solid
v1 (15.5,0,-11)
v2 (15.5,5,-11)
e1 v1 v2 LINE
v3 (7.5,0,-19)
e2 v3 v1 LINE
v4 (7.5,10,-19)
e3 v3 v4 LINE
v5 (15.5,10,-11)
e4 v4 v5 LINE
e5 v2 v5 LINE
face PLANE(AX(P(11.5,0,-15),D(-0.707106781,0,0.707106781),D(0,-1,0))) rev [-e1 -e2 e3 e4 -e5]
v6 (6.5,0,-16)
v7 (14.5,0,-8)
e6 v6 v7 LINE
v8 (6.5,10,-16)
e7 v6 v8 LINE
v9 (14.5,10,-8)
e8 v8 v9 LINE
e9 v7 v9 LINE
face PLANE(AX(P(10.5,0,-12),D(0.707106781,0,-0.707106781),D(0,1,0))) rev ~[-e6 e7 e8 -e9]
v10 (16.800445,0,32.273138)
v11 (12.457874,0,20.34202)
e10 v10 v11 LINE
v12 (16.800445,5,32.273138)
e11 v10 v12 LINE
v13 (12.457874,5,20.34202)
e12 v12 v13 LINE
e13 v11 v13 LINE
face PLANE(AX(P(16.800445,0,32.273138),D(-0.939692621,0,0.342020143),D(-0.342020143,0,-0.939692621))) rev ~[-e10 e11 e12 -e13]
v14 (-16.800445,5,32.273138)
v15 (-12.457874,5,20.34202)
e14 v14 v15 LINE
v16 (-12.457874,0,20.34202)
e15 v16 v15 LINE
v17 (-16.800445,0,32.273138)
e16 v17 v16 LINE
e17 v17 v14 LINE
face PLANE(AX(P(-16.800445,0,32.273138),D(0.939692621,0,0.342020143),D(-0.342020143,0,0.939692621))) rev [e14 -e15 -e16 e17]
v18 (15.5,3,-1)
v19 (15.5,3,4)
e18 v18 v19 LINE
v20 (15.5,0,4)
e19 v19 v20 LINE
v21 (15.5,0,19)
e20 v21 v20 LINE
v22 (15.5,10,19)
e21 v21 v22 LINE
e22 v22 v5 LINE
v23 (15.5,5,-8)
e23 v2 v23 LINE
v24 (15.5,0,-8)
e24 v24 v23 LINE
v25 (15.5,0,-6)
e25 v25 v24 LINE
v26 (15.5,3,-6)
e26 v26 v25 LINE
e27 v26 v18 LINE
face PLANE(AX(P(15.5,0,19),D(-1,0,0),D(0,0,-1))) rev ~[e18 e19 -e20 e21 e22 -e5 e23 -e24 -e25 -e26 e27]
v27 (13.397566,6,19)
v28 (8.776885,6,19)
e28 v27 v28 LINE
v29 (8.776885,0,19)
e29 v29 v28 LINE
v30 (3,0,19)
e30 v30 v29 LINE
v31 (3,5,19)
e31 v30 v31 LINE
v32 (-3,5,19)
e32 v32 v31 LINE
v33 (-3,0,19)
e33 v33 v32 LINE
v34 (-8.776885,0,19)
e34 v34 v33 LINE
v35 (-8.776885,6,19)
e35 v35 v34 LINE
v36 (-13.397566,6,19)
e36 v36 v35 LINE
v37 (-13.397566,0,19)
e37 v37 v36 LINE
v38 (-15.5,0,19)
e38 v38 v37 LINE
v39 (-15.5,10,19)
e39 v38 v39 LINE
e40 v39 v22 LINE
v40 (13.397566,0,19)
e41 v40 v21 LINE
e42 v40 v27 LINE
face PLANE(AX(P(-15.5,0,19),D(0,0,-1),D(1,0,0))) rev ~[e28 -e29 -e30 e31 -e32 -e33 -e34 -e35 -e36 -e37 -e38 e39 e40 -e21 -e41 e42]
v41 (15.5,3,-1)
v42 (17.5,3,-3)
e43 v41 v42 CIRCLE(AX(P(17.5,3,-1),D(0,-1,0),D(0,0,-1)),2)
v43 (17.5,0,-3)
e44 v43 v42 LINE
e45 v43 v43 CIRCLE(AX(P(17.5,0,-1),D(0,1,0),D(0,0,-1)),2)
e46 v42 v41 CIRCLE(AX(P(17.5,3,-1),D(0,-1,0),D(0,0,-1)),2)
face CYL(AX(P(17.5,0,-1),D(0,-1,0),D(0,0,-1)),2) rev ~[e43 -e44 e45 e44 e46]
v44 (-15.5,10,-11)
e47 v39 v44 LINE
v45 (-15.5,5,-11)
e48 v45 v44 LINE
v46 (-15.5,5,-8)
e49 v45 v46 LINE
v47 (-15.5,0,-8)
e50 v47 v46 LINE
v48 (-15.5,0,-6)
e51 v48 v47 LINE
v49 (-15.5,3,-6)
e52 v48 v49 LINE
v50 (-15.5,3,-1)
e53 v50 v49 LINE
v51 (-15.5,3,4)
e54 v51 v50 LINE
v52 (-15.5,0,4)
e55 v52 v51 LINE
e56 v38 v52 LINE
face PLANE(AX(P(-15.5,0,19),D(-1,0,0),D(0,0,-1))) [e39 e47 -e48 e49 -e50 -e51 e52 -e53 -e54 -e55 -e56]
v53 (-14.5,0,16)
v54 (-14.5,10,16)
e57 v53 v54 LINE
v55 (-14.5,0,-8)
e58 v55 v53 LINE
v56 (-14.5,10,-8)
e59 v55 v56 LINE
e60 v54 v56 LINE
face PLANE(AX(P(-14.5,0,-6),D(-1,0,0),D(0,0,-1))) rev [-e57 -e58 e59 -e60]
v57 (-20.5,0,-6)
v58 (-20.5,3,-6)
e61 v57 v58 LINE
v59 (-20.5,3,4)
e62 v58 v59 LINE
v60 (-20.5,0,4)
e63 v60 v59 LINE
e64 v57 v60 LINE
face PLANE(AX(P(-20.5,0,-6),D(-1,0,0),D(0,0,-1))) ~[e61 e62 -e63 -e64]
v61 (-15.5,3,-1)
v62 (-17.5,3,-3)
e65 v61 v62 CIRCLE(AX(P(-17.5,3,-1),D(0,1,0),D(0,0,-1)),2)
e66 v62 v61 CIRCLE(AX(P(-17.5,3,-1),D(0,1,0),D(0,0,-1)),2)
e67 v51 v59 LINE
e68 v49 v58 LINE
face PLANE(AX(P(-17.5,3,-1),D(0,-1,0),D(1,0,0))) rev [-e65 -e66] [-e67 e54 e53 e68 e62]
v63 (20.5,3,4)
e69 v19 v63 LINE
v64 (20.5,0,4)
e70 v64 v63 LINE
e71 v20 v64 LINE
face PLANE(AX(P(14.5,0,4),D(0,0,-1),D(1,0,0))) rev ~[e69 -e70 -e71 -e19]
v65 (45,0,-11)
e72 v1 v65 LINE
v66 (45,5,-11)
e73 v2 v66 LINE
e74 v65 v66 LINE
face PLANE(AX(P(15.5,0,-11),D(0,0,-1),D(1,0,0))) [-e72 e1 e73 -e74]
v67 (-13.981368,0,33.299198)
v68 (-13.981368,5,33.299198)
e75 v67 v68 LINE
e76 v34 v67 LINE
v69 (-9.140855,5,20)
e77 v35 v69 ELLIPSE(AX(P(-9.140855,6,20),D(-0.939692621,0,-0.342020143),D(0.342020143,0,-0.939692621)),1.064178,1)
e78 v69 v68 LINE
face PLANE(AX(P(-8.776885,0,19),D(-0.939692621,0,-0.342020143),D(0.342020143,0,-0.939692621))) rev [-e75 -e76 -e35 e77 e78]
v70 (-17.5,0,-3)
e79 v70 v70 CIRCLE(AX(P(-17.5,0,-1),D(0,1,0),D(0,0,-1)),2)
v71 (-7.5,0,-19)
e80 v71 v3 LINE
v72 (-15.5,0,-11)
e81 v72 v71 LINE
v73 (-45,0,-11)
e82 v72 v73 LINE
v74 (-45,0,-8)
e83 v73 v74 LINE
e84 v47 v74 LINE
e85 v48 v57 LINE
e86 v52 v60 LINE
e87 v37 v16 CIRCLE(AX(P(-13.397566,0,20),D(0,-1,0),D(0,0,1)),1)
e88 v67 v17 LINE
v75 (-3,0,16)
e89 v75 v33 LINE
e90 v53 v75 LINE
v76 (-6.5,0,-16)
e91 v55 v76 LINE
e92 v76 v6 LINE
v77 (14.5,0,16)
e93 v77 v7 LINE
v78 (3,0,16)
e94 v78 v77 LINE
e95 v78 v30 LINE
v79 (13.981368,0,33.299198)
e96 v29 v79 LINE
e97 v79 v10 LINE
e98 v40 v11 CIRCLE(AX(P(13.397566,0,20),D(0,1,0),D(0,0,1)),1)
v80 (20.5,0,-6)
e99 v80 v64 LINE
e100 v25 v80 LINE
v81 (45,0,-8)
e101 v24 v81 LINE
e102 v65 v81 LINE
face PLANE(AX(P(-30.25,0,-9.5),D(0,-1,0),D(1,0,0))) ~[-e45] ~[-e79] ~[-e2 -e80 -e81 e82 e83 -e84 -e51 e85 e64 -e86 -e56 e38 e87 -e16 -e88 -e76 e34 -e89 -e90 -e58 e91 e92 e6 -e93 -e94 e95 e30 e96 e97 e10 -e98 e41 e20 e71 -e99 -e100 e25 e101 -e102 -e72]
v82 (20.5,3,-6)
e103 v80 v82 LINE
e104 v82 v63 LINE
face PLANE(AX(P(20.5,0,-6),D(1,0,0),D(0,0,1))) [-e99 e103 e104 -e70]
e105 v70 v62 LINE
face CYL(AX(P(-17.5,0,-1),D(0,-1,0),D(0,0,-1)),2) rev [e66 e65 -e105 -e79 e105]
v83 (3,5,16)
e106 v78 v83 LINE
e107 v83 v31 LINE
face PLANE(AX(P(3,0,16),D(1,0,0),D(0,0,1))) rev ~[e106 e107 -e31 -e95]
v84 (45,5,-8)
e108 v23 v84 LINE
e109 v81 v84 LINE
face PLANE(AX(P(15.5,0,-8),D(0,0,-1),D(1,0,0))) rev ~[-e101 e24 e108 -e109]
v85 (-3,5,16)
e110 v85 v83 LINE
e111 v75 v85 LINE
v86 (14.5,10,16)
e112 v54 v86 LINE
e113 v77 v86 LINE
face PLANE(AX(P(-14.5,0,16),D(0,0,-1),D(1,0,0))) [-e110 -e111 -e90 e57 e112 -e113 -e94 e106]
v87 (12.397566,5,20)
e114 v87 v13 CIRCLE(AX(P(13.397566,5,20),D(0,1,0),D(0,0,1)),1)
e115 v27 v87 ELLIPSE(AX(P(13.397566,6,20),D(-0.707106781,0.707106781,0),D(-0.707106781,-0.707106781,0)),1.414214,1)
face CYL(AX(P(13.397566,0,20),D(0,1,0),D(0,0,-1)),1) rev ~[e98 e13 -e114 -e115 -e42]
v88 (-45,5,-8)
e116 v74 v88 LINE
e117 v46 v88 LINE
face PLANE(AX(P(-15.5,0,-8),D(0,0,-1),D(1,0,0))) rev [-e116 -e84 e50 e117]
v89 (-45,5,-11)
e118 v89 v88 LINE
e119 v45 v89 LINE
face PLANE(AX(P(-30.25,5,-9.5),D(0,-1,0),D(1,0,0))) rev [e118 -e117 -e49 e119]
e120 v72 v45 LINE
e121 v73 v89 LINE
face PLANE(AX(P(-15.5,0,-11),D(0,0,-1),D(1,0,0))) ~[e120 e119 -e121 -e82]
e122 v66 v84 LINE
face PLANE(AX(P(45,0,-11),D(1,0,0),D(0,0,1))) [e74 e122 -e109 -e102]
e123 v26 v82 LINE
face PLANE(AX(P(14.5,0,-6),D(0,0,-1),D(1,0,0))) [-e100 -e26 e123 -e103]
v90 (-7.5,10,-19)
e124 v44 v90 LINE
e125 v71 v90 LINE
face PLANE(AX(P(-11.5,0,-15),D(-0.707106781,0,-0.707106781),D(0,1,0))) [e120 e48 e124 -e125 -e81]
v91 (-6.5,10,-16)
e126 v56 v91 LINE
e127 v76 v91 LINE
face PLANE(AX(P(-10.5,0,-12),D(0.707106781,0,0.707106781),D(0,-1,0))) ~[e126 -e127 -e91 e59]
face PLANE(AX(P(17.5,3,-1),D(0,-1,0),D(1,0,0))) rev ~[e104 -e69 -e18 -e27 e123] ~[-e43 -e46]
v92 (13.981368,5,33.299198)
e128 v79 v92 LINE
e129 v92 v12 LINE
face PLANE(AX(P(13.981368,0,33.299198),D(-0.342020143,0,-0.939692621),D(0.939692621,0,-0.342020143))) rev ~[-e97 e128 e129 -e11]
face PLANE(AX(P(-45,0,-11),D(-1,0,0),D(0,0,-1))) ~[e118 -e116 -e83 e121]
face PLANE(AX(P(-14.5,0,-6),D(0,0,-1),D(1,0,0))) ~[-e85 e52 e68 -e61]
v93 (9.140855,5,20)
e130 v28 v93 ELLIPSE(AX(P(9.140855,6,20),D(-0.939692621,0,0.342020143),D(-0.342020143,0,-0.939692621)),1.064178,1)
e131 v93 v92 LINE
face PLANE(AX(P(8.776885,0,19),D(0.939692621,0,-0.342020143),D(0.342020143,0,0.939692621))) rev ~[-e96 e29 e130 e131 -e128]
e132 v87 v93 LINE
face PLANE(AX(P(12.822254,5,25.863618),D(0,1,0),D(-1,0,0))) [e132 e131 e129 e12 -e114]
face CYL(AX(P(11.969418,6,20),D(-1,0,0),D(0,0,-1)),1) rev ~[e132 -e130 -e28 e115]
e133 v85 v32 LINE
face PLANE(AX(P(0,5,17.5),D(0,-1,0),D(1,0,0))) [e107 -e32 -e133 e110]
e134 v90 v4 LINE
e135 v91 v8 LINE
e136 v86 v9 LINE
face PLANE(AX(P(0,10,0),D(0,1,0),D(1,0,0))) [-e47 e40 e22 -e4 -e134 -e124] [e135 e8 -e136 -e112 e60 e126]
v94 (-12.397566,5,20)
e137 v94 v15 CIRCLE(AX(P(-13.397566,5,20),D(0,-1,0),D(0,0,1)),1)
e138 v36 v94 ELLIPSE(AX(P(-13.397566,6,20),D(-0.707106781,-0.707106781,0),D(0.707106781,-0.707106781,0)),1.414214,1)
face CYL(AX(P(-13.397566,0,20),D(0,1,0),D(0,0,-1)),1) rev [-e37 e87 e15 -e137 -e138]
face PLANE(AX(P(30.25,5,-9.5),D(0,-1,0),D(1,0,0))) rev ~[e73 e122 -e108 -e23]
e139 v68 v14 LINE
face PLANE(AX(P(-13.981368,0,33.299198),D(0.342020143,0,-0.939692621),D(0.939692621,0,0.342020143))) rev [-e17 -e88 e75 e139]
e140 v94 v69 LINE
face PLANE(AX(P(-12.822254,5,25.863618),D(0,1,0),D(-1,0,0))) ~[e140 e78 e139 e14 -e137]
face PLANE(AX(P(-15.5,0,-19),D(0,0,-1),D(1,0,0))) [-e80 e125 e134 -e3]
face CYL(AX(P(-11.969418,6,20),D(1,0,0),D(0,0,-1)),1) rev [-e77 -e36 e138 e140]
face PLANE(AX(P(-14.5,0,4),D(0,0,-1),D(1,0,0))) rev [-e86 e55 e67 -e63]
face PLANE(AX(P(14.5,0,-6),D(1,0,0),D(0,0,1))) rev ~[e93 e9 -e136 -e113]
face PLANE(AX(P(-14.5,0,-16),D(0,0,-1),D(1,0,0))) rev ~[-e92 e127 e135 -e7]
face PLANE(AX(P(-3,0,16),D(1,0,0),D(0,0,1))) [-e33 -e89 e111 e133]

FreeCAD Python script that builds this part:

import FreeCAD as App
import Part
import Sketcher
Q = App.Units.Quantity


def edges_at(feature, points):
    """Names of the edges that pass closest to the given points."""
    edges = feature.Shape.Edges
    near = lambda p: min(range(len(edges)), key=lambda i: edges[i].distToShape(Part.Vertex(*p))[0])
    return sorted({f"Edge{near(p) + 1}" for p in points})


def add_polygon(sketch, points):
    """Adds a closed chain of lines whose ends are joined by coincident constraints."""
    first, n = sketch.GeometryCount, len(points)
    for a, b in zip(points, points[1:] + points[:1]):
        sketch.addGeometry(Part.LineSegment(App.Vector(*a, 0), App.Vector(*b, 0)), False)
    for i in range(n):
        sketch.addConstraint(Sketcher.Constraint("Coincident", first + i, 2, first + (i + 1) % n, 1))

doc = App.newDocument("Part")
body = doc.addObject("PartDesign::Body", "Body")

sketch1 = body.newObject("Sketcher::SketchObject", "Sketch")
sketch1.AttachmentSupport = (doc.getObject("XZ_Plane"), [""])
sketch1.MapMode = "FlatFace"
add_polygon(sketch1, [(-16, -19), (-16, 19), (16, 19), (16, -19)])
add_polygon(sketch1, [(14, 16), (-14, 16), (-14, -16), (14, -16)])
sketch1.addConstraint(Sketcher.Constraint("Vertical", 0))
sketch1.addConstraint(Sketcher.Constraint("Horizontal", 1))
sketch1.addConstraint(Sketcher.Constraint("Vertical", 2))
sketch1.addConstraint(Sketcher.Constraint("Horizontal", 3))
sketch1.addConstraint(Sketcher.Constraint("Horizontal", 4))
sketch1.addConstraint(Sketcher.Constraint("Vertical", 5))
sketch1.addConstraint(Sketcher.Constraint("Horizontal", 6))
sketch1.addConstraint(Sketcher.Constraint("Vertical", 7))
sketch1.addConstraint(Sketcher.Constraint("Symmetric", 0, 2, 2, 2, -1, 1))
sketch1.addConstraint(Sketcher.Constraint("Symmetric", 4, 2, 6, 2, -1, 1))
sketch1.addConstraint(Sketcher.Constraint("DistanceX", 1, 1, 1, 2, Q("31 mm")))
sketch1.addConstraint(Sketcher.Constraint("DistanceX", 4, 2, 4, 1, Q("29 mm")))
sketch1.addConstraint(Sketcher.Constraint("DistanceY", 0, 1, 0, 2, Q("38 mm")))
sketch1.addConstraint(Sketcher.Constraint("DistanceY", 5, 2, 5, 1, Q("32 mm")))
pad1 = body.newObject("PartDesign::Pad", "Pad")
pad1.Profile = sketch1
pad1.Length = 10
pad1.Reversed = True

sketch2 = body.newObject("Sketcher::SketchObject", "Sketch001")
sketch2.AttachmentSupport = (doc.getObject("XZ_Plane"), [""])
sketch2.MapMode = "FlatFace"
add_polygon(sketch2, [(14.5, 4), (14.5, -6), (20.5, -6), (20.5, 4)])
sketch2.addGeometry(Part.Circle(App.Vector(17.5, -1, 0), App.Vector(0, 0, 1), 2), False)
sketch2.addConstraint(Sketcher.Constraint("Vertical", 0))
sketch2.addConstraint(Sketcher.Constraint("Horizontal", 1))
sketch2.addConstraint(Sketcher.Constraint("Vertical", 2))
sketch2.addConstraint(Sketcher.Constraint("Horizontal", 3))
sketch2.addConstraint(Sketcher.Constraint("Diameter", 4, Q("4 mm")))
sketch2.addConstraint(Sketcher.Constraint("DistanceX", 1, 1, 1, 2, Q("6 mm")))
sketch2.addConstraint(Sketcher.Constraint("DistanceY", 0, 2, 0, 1, Q("10 mm")))
sketch2.addConstraint(Sketcher.Constraint("DistanceY", 4, 3, -1, 1, Q("1 mm")))
sketch2.addConstraint(Sketcher.Constraint("DistanceY", 0, 2, -1, 1, Q("6 mm")))
sketch2.addConstraint(Sketcher.Constraint("DistanceX", 0, 2, 4, 3, Q("3 mm")))
sketch2.addConstraint(Sketcher.Constraint("DistanceX", -1, 1, 4, 3, Q("17.5 mm")))
pad2 = body.newObject("PartDesign::Pad", "Pad001")
pad2.Profile = sketch2
pad2.Length = 3
pad2.Reversed = True
doc.recompute()

mirrored = body.newObject("PartDesign::Mirrored", "Mirrored")
mirrored.Originals = [pad2]
mirrored.MirrorPlane = (doc.getObject("YZ_Plane"), [""])
body.Tip = mirrored

sketch3 = body.newObject("Sketcher::SketchObject", "Sketch002")
sketch3.AttachmentSupport = (doc.getObject("XZ_Plane"), [""])
sketch3.MapMode = "FlatFace"
add_polygon(sketch3, [(-3, 19), (-3, 16), (3, 16), (3, 19)])
sketch3.addConstraint(Sketcher.Constraint("Vertical", 0))
sketch3.addConstraint(Sketcher.Constraint("Horizontal", 1))
sketch3.addConstraint(Sketcher.Constraint("Vertical", 2))
sketch3.addConstraint(Sketcher.Constraint("Horizontal", 3))
sketch3.addConstraint(Sketcher.Constraint("DistanceX", 1, 1, 1, 2, Q("6 mm")))
sketch3.addConstraint(Sketcher.Constraint("DistanceY", 0, 2, 0, 1, Q("3 mm")))
sketch3.addConstraint(Sketcher.Constraint("DistanceX", 0, 2, -1, 1, Q("3 mm")))
sketch3.addConstraint(Sketcher.Constraint("DistanceY", -1, 1, 0, 2, Q("16 mm")))
pocket1 = body.newObject("PartDesign::Pocket", "Pocket")
pocket1.Profile = sketch3
pocket1.Length = 5

sketch4 = body.newObject("Sketcher::SketchObject", "Sketch003")
sketch4.AttachmentSupport = (doc.getObject("XZ_Plane"), [""])
sketch4.MapMode = "FlatFace"
add_polygon(sketch4, [(16.8, 32.3), (14, 33.3), (8.8, 19), (12, 19)])
add_polygon(sketch4, [(15.5, -8), (15.5, -11), (45, -11), (45, -8)])
sketch4.addConstraint(Sketcher.Constraint("Horizontal", 2))
sketch4.addConstraint(Sketcher.Constraint("Vertical", 4))
sketch4.addConstraint(Sketcher.Constraint("Horizontal", 5))
sketch4.addConstraint(Sketcher.Constraint("Vertical", 6))
sketch4.addConstraint(Sketcher.Constraint("Horizontal", 7))
sketch4.addConstraint(Sketcher.Constraint("Perpendicular", 0, 1))
sketch4.addConstraint(Sketcher.Constraint("Parallel", 1, 3))
sketch4.addConstraint(Sketcher.Constraint("DistanceY", 4, 2, 4, 1, Q("3 mm")))
sketch4.addConstraint(Sketcher.Constraint("Angle", 0, Q("160 deg")))
sketch4.addConstraint(Sketcher.Constraint("Distance", 0, Q("3 mm")))
sketch4.addConstraint(Sketcher.Constraint("DistanceX", 5, 1, 5, 2, Q("29.5 mm")))
sketch4.addConstraint(Sketcher.Constraint("DistanceY", -1, 1, 1, 2, Q("19 mm")))
sketch4.addConstraint(Sketcher.Constraint("DistanceY", 4, 2, -1, 1, Q("11 mm")))
sketch4.addConstraint(Sketcher.Constraint("DistanceX", -1, 1, 5, 2, Q("45 mm")))
sketch4.addConstraint(Sketcher.Constraint("DistanceY", -1, 1, 0, 2, Q("33.299198 mm")))
sketch4.addConstraint(Sketcher.Constraint("DistanceX", -1, 1, 2, 2, Q("11.969418 mm")))
pad3 = body.newObject("PartDesign::Pad", "Pad002")
pad3.Profile = sketch4
pad3.Length = 5
pad3.Reversed = True
doc.recompute()

fillet = body.newObject("PartDesign::Fillet", "Fillet")
fillet.Base = (pad3, edges_at(pad3, [(10.373, 5, 19), (11.969, 2.5, 19)]))
fillet.Radius = 1
doc.recompute()

chamfer = body.newObject("PartDesign::Chamfer", "Chamfer")
chamfer.Base = (fillet, edges_at(fillet, [
    (15.5, 5, -19),
    (-15.5, 5, -19),
    (14.5, 5, -16),
    (-14.5, 5, -16),
]))
chamfer.Size = 8
doc.recompute()

mirrored2 = body.newObject("PartDesign::Mirrored", "Mirrored001")
mirrored2.Originals = [pad3]
mirrored2.MirrorPlane = (doc.getObject("YZ_Plane"), [""])
body.Tip = mirrored2
doc.recompute()

fillet2 = body.newObject("PartDesign::Fillet", "Fillet001")
fillet2.Base = (mirrored2, edges_at(mirrored2, [(-10.373, 5, 19), (-11.969, 2.5, 19)]))
fillet2.Radius = 1

doc.recompute()
